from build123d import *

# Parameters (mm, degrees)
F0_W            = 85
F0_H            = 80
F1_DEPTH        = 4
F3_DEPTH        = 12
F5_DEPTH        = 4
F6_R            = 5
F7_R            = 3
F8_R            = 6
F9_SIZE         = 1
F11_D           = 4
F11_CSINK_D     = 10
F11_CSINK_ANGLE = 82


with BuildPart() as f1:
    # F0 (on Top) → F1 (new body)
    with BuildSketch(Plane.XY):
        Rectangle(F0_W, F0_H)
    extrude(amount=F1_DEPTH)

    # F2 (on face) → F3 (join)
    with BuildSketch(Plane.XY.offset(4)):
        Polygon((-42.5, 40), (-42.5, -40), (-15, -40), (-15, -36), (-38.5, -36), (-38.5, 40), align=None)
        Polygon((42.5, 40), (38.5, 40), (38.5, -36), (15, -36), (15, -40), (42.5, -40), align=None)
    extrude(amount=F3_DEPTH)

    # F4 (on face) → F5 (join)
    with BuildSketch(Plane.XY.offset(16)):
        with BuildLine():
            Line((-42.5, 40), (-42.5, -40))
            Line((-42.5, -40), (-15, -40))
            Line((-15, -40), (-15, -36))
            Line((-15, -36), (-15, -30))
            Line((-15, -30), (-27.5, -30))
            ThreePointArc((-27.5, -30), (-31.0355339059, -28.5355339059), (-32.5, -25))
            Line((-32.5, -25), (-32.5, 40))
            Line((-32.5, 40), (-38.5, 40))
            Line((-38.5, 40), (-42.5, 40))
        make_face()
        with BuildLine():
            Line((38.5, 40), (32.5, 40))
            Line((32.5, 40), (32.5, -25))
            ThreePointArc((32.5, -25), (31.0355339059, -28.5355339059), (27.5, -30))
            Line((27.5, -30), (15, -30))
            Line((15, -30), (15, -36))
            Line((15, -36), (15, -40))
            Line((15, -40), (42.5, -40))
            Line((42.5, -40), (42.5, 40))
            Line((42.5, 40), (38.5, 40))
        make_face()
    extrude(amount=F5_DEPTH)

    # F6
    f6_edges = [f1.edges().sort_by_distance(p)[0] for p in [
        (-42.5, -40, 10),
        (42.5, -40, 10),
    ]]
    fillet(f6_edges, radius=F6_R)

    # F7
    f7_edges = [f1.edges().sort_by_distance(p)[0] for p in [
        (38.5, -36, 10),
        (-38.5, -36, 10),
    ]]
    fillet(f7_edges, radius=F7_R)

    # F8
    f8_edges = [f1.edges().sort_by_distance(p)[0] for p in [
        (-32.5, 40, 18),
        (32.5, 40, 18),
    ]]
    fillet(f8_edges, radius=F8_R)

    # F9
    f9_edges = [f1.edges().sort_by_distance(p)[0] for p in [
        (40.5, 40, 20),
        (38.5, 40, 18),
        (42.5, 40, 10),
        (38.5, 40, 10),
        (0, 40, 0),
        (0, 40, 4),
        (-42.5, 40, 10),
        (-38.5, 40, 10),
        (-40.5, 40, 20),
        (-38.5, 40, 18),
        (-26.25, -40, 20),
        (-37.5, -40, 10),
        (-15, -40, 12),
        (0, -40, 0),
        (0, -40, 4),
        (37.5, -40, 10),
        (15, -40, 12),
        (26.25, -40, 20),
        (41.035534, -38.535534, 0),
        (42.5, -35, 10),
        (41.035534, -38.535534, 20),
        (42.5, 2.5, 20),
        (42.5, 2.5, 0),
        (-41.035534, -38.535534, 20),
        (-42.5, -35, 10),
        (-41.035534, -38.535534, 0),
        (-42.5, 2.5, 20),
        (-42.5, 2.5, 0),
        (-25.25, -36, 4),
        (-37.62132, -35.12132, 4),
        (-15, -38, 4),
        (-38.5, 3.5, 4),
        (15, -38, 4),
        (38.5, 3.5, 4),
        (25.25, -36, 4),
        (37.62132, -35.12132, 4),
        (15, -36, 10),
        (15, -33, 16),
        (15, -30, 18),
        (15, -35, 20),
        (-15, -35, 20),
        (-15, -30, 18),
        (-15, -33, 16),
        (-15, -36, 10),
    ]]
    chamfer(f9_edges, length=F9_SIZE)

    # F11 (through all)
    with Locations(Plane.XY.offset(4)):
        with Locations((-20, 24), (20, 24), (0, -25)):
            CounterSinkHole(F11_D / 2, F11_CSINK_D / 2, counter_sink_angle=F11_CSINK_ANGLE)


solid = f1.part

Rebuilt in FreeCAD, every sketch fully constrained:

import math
import FreeCAD as App
import Part
import Sketcher

V = App.Vector


def edges_at(feature, points):
    """Names of the edges that pass closest to the given points."""
    edges = feature.Shape.Edges
    near = lambda p: min(range(len(edges)), key=lambda i: edges[i].distToShape(Part.Vertex(*p))[0])
    return sorted({f"Edge{near(p) + 1}" for p in points})

doc = App.newDocument("Part")
body = doc.addObject("PartDesign::Body", "Body")

# Sketch on XY plane
sketch1 = body.newObject("Sketcher::SketchObject", "Sketch")
sketch1.AttachmentSupport = (doc.getObject("XY_Plane"), [""])
sketch1.MapMode = "FlatFace"
sketch1.addGeometry(Part.LineSegment(V(-42.5, 40, 0), V(-42.5, -40, 0)), False)
sketch1.addGeometry(Part.LineSegment(V(-42.5, -40, 0), V(42.5, -40, 0)), False)
sketch1.addGeometry(Part.LineSegment(V(42.5, -40, 0), V(42.5, 40, 0)), False)
sketch1.addGeometry(Part.LineSegment(V(42.5, 40, 0), V(-42.5, 40, 0)), False)
sketch1.addConstraint(Sketcher.Constraint("Coincident", 0, 2, 1, 1))
sketch1.addConstraint(Sketcher.Constraint("Coincident", 1, 2, 2, 1))
sketch1.addConstraint(Sketcher.Constraint("Coincident", 2, 2, 3, 1))
sketch1.addConstraint(Sketcher.Constraint("Coincident", 3, 2, 0, 1))
sketch1.addConstraint(Sketcher.Constraint("Vertical", 0))
sketch1.addConstraint(Sketcher.Constraint("Horizontal", 1))
sketch1.addConstraint(Sketcher.Constraint("Vertical", 2))
sketch1.addConstraint(Sketcher.Constraint("Horizontal", 3))
sketch1.addConstraint(Sketcher.Constraint("Symmetric", 0, 2, 2, 2, -1, 1))
sketch1.addConstraint(Sketcher.Constraint("DistanceX", 1, 1, 1, 2, 85.0))
sketch1.addConstraint(Sketcher.Constraint("DistanceY", 0, 2, 0, 1, 80.0))
pad1 = body.newObject("PartDesign::Pad", "Pad")
pad1.Profile = sketch1
pad1.Length = 4

# Sketch on XY plane
sketch2 = body.newObject("Sketcher::SketchObject", "Sketch001")
sketch2.AttachmentSupport = (doc.getObject("XY_Plane"), [""])
sketch2.MapMode = "FlatFace"
sketch2.AttachmentOffset = App.Placement(V(0, 0, 4), App.Rotation())
sketch2.addGeometry(Part.LineSegment(V(-42.5, 40, 0), V(-42.5, -40, 0)), False)
sketch2.addGeometry(Part.LineSegment(V(-42.5, -40, 0), V(-15, -40, 0)), False)
sketch2.addGeometry(Part.LineSegment(V(-15, -40, 0), V(-15, -36, 0)), False)
sketch2.addGeometry(Part.LineSegment(V(-15, -36, 0), V(-38.5, -36, 0)), False)
sketch2.addGeometry(Part.LineSegment(V(-38.5, -36, 0), V(-38.5, 40, 0)), False)
sketch2.addGeometry(Part.LineSegment(V(-38.5, 40, 0), V(-42.5, 40, 0)), False)
sketch2.addGeometry(Part.LineSegment(V(42.5, 40, 0), V(38.5, 40, 0)), False)
sketch2.addGeometry(Part.LineSegment(V(38.5, 40, 0), V(38.5, -36, 0)), False)
sketch2.addGeometry(Part.LineSegment(V(38.5, -36, 0), V(15, -36, 0)), False)
sketch2.addGeometry(Part.LineSegment(V(15, -36, 0), V(15, -40, 0)), False)
sketch2.addGeometry(Part.LineSegment(V(15, -40, 0), V(42.5, -40, 0)), False)
sketch2.addGeometry(Part.LineSegment(V(42.5, -40, 0), V(42.5, 40, 0)), False)
sketch2.addConstraint(Sketcher.Constraint("Coincident", 0, 2, 1, 1))
sketch2.addConstraint(Sketcher.Constraint("Coincident", 1, 2, 2, 1))
sketch2.addConstraint(Sketcher.Constraint("Coincident", 2, 2, 3, 1))
sketch2.addConstraint(Sketcher.Constraint("Coincident", 3, 2, 4, 1))
sketch2.addConstraint(Sketcher.Constraint("Coincident", 4, 2, 5, 1))
sketch2.addConstraint(Sketcher.Constraint("Coincident", 5, 2, 0, 1))
sketch2.addConstraint(Sketcher.Constraint("Coincident", 6, 2, 7, 1))
sketch2.addConstraint(Sketcher.Constraint("Coincident", 7, 2, 8, 1))
sketch2.addConstraint(Sketcher.Constraint("Coincident", 8, 2, 9, 1))
sketch2.addConstraint(Sketcher.Constraint("Coincident", 9, 2, 10, 1))
sketch2.addConstraint(Sketcher.Constraint("Coincident", 10, 2, 11, 1))
sketch2.addConstraint(Sketcher.Constraint("Coincident", 11, 2, 6, 1))
sketch2.addConstraint(Sketcher.Constraint("Vertical", 0))
sketch2.addConstraint(Sketcher.Constraint("Horizontal", 1))
sketch2.addConstraint(Sketcher.Constraint("Vertical", 2))
sketch2.addConstraint(Sketcher.Constraint("Horizontal", 3))
sketch2.addConstraint(Sketcher.Constraint("Vertical", 4))
sketch2.addConstraint(Sketcher.Constraint("Horizontal", 5))
sketch2.addConstraint(Sketcher.Constraint("Horizontal", 6))
sketch2.addConstraint(Sketcher.Constraint("Vertical", 7))
sketch2.addConstraint(Sketcher.Constraint("Horizontal", 8))
sketch2.addConstraint(Sketcher.Constraint("Vertical", 9))
sketch2.addConstraint(Sketcher.Constraint("Horizontal", 10))
sketch2.addConstraint(Sketcher.Constraint("Vertical", 11))
sketch2.addConstraint(Sketcher.Constraint("Symmetric", 5, 2, 10, 2, -1, 1))
sketch2.addConstraint(Sketcher.Constraint("Symmetric", 4, 2, 6, 2, -2))
sketch2.addConstraint(Sketcher.Constraint("Symmetric", 2, 2, 8, 2, -2))
sketch2.addConstraint(Sketcher.Constraint("Horizontal", 1, 2, 9, 2))
sketch2.addConstraint(Sketcher.Constraint("Equal", 6, 2))
sketch2.addConstraint(Sketcher.Constraint("DistanceX", 5, 2, 5, 1, 4.0))
sketch2.addConstraint(Sketcher.Constraint("DistanceY", 0, 2, 0, 1, 80.0))
sketch2.addConstraint(Sketcher.Constraint("DistanceX", 1, 1, 1, 2, 27.5))
sketch2.addConstraint(Sketcher.Constraint("DistanceX", 1, 2, -1, 1, 15.0))
pad2 = body.newObject("PartDesign::Pad", "Pad001")
pad2.Profile = sketch2
pad2.Length = 12

# Sketch on XY plane
sketch3 = body.newObject("Sketcher::SketchObject", "Sketch002")
sketch3.AttachmentSupport = (doc.getObject("XY_Plane"), [""])
sketch3.MapMode = "FlatFace"
sketch3.AttachmentOffset = App.Placement(V(0, 0, 16), App.Rotation())
sketch3.addGeometry(Part.LineSegment(V(-42.5, 40, 0), V(-42.5, -40, 0)), False)
sketch3.addGeometry(Part.LineSegment(V(-42.5, -40, 0), V(-15, -40, 0)), False)
sketch3.addGeometry(Part.LineSegment(V(-15, -40, 0), V(-15, -30, 0)), False)
sketch3.addGeometry(Part.LineSegment(V(-15, -30, 0), V(-27.5, -30, 0)), False)
sketch3.addGeometry(Part.ArcOfCircle(Part.Circle(V(-27.5, -25, 0), V(0, 0, 1), 5), math.radians(180), math.radians(270)), False)
sketch3.addGeometry(Part.LineSegment(V(-32.5, -25, 0), V(-32.5, 40, 0)), False)
sketch3.addGeometry(Part.LineSegment(V(-32.5, 40, 0), V(-42.5, 40, 0)), False)
sketch3.addGeometry(Part.LineSegment(V(32.5, 40, 0), V(32.5, -25, 0)), False)
sketch3.addGeometry(Part.ArcOfCircle(Part.Circle(V(27.5, -25, 0), V(0, 0, 1), 5), math.radians(-90), math.radians(0)), False)
sketch3.addGeometry(Part.LineSegment(V(27.5, -30, 0), V(15, -30, 0)), False)
sketch3.addGeometry(Part.LineSegment(V(15, -30, 0), V(15, -40, 0)), False)
sketch3.addGeometry(Part.LineSegment(V(15, -40, 0), V(42.5, -40, 0)), False)
sketch3.addGeometry(Part.LineSegment(V(42.5, -40, 0), V(42.5, 40, 0)), False)
sketch3.addGeometry(Part.LineSegment(V(42.5, 40, 0), V(32.5, 40, 0)), False)
sketch3.addConstraint(Sketcher.Constraint("Coincident", 0, 2, 1, 1))
sketch3.addConstraint(Sketcher.Constraint("Coincident", 1, 2, 2, 1))
sketch3.addConstraint(Sketcher.Constraint("Coincident", 2, 2, 3, 1))
sketch3.addConstraint(Sketcher.Constraint("Tangent", 3, 2, 4, 2))
sketch3.addConstraint(Sketcher.Constraint("Tangent", 4, 1, 5, 1))
sketch3.addConstraint(Sketcher.Constraint("Coincident", 5, 2, 6, 1))
sketch3.addConstraint(Sketcher.Constraint("Coincident", 6, 2, 0, 1))
sketch3.addConstraint(Sketcher.Constraint("Tangent", 7, 2, 8, 2))
sketch3.addConstraint(Sketcher.Constraint("Tangent", 8, 1, 9, 1))
sketch3.addConstraint(Sketcher.Constraint("Coincident", 9, 2, 10, 1))
sketch3.addConstraint(Sketcher.Constraint("Coincident", 10, 2, 11, 1))
sketch3.addConstraint(Sketcher.Constraint("Coincident", 11, 2, 12, 1))
sketch3.addConstraint(Sketcher.Constraint("Coincident", 12, 2, 13, 1))
sketch3.addConstraint(Sketcher.Constraint("Coincident", 13, 2, 7, 1))
sketch3.addConstraint(Sketcher.Constraint("Vertical", 0))
sketch3.addConstraint(Sketcher.Constraint("Horizontal", 1))
sketch3.addConstraint(Sketcher.Constraint("Vertical", 2))
sketch3.addConstraint(Sketcher.Constraint("Horizontal", 3))
sketch3.addConstraint(Sketcher.Constraint("Vertical", 5))
sketch3.addConstraint(Sketcher.Constraint("Horizontal", 6))
sketch3.addConstraint(Sketcher.Constraint("Vertical", 7))
sketch3.addConstraint(Sketcher.Constraint("Horizontal", 9))
sketch3.addConstraint(Sketcher.Constraint("Vertical", 10))
sketch3.addConstraint(Sketcher.Constraint("Horizontal", 11))
sketch3.addConstraint(Sketcher.Constraint("Vertical", 12))
sketch3.addConstraint(Sketcher.Constraint("Horizontal", 13))
sketch3.addConstraint(Sketcher.Constraint("Equal", 4, 8))
sketch3.addConstraint(Sketcher.Constraint("Symmetric", 6, 2, 11, 2, -1, 1))
sketch3.addConstraint(Sketcher.Constraint("Symmetric", 4, 3, 8, 3, -2))
sketch3.addConstraint(Sketcher.Constraint("Symmetric", 1, 2, 10, 2, -2))
sketch3.addConstraint(Sketcher.Constraint("Horizontal", 6, 2, 12, 2))
sketch3.addConstraint(Sketcher.Constraint("Equal", 13, 2))
sketch3.addConstraint(Sketcher.Constraint("Radius", 4, 5.0))
sketch3.addConstraint(Sketcher.Constraint("DistanceX", 6, 2, 6, 1, 10.0))
sketch3.addConstraint(Sketcher.Constraint("DistanceY", 0, 2, 0, 1, 80.0))
sketch3.addConstraint(Sketcher.Constraint("DistanceX", 1, 1, 1, 2, 27.5))
sketch3.addConstraint(Sketcher.Constraint("DistanceX", 1, 2, -1, 1, 15.0))
pad3 = body.newObject("PartDesign::Pad", "Pad002")
pad3.Profile = sketch3
pad3.Length = 4
doc.recompute()

fillet = body.newObject("PartDesign::Fillet", "Fillet")
fillet.Base = (pad3, edges_at(pad3, [(-42.5, -40, 10), (42.5, -40, 10)]))
fillet.Radius = 5
doc.recompute()

fillet2 = body.newObject("PartDesign::Fillet", "Fillet001")
fillet2.Base = (fillet, edges_at(fillet, [(38.5, -36, 10), (-38.5, -36, 10)]))
fillet2.Radius = 3
doc.recompute()

fillet3 = body.newObject("PartDesign::Fillet", "Fillet002")
fillet3.Base = (fillet2, edges_at(fillet2, [(-32.5, 40, 18), (32.5, 40, 18)]))
fillet3.Radius = 6
doc.recompute()

chamfer = body.newObject("PartDesign::Chamfer", "Chamfer")
chamfer.Base = (fillet3, edges_at(fillet3, [
    (40.5, 40, 20),
    (38.5, 40, 18),
    (42.5, 40, 10),
    (38.5, 40, 10),
    (0, 40, 0),
    (0, 40, 4),
    (-42.5, 40, 10),
    (-38.5, 40, 10),
    (-40.5, 40, 20),
    (-38.5, 40, 18),
    (-26.25, -40, 20),
    (-37.5, -40, 10),
    (-15, -40, 12),
    (0, -40, 0),
    (0, -40, 4),
    (37.5, -40, 10),
    (15, -40, 12),
    (26.25, -40, 20),
    (41.036, -38.536, 0),
    (42.5, -35, 10),
    (41.036, -38.536, 20),
    (42.5, 2.5, 20),
    (42.5, 2.5, 0),
    (-41.036, -38.536, 20),
    (-42.5, -35, 10),
    (-41.036, -38.536, 0),
    (-42.5, 2.5, 20),
    (-42.5, 2.5, 0),
    (-25.25, -36, 4),
    (-37.621, -35.121, 4),
    (-15, -38, 4),
    (-38.5, 3.5, 4),
    (15, -38, 4),
    (38.5, 3.5, 4),
    (25.25, -36, 4),
    (37.621, -35.121, 4),
    (15, -36, 10),
    (15, -33, 16),
    (15, -30, 18),
    (15, -35, 20),
    (-15, -35, 20),
    (-15, -30, 18),
    (-15, -33, 16),
    (-15, -36, 10),
]))
chamfer.Size = 1

# Sketch on XY plane
sketch4 = body.newObject("Sketcher::SketchObject", "Sketch003")
sketch4.AttachmentSupport = (doc.getObject("XY_Plane"), [""])
sketch4.MapMode = "FlatFace"
sketch4.AttachmentOffset = App.Placement(V(0, 0, 4), App.Rotation())
sketch4.addGeometry(Part.Circle(V(-20, 24, 0), V(0, 0, 1), 2), False)
sketch4.addGeometry(Part.Circle(V(20, 24, 0), V(0, 0, 1), 2), False)
sketch4.addGeometry(Part.Circle(V(0, -25, 0), V(0, 0, 1), 2), False)
sketch4.addConstraint(Sketcher.Constraint("Equal", 0, 1))
sketch4.addConstraint(Sketcher.Constraint("Equal", 1, 2))
sketch4.addConstraint(Sketcher.Constraint("Symmetric", 0, 3, 1, 3, -2))
sketch4.addConstraint(Sketcher.Constraint("PointOnObject", 2, 3, -2))
sketch4.addConstraint(Sketcher.Constraint("Diameter", 0, 4.0))
sketch4.addConstraint(Sketcher.Constraint("DistanceX", 0, 3, -1, 1, 20.0))
sketch4.addConstraint(Sketcher.Constraint("DistanceY", -1, 1, 0, 3, 24.0))
sketch4.addConstraint(Sketcher.Constraint("DistanceY", 2, 3, -1, 1, 25.0))
doc.recompute()
hole = body.newObject("PartDesign::Hole", "Hole")
hole.Profile = sketch4
hole.ThreadType = "None"
hole.Diameter = 4
hole.DepthType = "ThroughAll"
hole.HoleCutType = "Countersink"
hole.HoleCutDiameter = 10
hole.HoleCutCountersinkAngle = 82

doc.recompute()
